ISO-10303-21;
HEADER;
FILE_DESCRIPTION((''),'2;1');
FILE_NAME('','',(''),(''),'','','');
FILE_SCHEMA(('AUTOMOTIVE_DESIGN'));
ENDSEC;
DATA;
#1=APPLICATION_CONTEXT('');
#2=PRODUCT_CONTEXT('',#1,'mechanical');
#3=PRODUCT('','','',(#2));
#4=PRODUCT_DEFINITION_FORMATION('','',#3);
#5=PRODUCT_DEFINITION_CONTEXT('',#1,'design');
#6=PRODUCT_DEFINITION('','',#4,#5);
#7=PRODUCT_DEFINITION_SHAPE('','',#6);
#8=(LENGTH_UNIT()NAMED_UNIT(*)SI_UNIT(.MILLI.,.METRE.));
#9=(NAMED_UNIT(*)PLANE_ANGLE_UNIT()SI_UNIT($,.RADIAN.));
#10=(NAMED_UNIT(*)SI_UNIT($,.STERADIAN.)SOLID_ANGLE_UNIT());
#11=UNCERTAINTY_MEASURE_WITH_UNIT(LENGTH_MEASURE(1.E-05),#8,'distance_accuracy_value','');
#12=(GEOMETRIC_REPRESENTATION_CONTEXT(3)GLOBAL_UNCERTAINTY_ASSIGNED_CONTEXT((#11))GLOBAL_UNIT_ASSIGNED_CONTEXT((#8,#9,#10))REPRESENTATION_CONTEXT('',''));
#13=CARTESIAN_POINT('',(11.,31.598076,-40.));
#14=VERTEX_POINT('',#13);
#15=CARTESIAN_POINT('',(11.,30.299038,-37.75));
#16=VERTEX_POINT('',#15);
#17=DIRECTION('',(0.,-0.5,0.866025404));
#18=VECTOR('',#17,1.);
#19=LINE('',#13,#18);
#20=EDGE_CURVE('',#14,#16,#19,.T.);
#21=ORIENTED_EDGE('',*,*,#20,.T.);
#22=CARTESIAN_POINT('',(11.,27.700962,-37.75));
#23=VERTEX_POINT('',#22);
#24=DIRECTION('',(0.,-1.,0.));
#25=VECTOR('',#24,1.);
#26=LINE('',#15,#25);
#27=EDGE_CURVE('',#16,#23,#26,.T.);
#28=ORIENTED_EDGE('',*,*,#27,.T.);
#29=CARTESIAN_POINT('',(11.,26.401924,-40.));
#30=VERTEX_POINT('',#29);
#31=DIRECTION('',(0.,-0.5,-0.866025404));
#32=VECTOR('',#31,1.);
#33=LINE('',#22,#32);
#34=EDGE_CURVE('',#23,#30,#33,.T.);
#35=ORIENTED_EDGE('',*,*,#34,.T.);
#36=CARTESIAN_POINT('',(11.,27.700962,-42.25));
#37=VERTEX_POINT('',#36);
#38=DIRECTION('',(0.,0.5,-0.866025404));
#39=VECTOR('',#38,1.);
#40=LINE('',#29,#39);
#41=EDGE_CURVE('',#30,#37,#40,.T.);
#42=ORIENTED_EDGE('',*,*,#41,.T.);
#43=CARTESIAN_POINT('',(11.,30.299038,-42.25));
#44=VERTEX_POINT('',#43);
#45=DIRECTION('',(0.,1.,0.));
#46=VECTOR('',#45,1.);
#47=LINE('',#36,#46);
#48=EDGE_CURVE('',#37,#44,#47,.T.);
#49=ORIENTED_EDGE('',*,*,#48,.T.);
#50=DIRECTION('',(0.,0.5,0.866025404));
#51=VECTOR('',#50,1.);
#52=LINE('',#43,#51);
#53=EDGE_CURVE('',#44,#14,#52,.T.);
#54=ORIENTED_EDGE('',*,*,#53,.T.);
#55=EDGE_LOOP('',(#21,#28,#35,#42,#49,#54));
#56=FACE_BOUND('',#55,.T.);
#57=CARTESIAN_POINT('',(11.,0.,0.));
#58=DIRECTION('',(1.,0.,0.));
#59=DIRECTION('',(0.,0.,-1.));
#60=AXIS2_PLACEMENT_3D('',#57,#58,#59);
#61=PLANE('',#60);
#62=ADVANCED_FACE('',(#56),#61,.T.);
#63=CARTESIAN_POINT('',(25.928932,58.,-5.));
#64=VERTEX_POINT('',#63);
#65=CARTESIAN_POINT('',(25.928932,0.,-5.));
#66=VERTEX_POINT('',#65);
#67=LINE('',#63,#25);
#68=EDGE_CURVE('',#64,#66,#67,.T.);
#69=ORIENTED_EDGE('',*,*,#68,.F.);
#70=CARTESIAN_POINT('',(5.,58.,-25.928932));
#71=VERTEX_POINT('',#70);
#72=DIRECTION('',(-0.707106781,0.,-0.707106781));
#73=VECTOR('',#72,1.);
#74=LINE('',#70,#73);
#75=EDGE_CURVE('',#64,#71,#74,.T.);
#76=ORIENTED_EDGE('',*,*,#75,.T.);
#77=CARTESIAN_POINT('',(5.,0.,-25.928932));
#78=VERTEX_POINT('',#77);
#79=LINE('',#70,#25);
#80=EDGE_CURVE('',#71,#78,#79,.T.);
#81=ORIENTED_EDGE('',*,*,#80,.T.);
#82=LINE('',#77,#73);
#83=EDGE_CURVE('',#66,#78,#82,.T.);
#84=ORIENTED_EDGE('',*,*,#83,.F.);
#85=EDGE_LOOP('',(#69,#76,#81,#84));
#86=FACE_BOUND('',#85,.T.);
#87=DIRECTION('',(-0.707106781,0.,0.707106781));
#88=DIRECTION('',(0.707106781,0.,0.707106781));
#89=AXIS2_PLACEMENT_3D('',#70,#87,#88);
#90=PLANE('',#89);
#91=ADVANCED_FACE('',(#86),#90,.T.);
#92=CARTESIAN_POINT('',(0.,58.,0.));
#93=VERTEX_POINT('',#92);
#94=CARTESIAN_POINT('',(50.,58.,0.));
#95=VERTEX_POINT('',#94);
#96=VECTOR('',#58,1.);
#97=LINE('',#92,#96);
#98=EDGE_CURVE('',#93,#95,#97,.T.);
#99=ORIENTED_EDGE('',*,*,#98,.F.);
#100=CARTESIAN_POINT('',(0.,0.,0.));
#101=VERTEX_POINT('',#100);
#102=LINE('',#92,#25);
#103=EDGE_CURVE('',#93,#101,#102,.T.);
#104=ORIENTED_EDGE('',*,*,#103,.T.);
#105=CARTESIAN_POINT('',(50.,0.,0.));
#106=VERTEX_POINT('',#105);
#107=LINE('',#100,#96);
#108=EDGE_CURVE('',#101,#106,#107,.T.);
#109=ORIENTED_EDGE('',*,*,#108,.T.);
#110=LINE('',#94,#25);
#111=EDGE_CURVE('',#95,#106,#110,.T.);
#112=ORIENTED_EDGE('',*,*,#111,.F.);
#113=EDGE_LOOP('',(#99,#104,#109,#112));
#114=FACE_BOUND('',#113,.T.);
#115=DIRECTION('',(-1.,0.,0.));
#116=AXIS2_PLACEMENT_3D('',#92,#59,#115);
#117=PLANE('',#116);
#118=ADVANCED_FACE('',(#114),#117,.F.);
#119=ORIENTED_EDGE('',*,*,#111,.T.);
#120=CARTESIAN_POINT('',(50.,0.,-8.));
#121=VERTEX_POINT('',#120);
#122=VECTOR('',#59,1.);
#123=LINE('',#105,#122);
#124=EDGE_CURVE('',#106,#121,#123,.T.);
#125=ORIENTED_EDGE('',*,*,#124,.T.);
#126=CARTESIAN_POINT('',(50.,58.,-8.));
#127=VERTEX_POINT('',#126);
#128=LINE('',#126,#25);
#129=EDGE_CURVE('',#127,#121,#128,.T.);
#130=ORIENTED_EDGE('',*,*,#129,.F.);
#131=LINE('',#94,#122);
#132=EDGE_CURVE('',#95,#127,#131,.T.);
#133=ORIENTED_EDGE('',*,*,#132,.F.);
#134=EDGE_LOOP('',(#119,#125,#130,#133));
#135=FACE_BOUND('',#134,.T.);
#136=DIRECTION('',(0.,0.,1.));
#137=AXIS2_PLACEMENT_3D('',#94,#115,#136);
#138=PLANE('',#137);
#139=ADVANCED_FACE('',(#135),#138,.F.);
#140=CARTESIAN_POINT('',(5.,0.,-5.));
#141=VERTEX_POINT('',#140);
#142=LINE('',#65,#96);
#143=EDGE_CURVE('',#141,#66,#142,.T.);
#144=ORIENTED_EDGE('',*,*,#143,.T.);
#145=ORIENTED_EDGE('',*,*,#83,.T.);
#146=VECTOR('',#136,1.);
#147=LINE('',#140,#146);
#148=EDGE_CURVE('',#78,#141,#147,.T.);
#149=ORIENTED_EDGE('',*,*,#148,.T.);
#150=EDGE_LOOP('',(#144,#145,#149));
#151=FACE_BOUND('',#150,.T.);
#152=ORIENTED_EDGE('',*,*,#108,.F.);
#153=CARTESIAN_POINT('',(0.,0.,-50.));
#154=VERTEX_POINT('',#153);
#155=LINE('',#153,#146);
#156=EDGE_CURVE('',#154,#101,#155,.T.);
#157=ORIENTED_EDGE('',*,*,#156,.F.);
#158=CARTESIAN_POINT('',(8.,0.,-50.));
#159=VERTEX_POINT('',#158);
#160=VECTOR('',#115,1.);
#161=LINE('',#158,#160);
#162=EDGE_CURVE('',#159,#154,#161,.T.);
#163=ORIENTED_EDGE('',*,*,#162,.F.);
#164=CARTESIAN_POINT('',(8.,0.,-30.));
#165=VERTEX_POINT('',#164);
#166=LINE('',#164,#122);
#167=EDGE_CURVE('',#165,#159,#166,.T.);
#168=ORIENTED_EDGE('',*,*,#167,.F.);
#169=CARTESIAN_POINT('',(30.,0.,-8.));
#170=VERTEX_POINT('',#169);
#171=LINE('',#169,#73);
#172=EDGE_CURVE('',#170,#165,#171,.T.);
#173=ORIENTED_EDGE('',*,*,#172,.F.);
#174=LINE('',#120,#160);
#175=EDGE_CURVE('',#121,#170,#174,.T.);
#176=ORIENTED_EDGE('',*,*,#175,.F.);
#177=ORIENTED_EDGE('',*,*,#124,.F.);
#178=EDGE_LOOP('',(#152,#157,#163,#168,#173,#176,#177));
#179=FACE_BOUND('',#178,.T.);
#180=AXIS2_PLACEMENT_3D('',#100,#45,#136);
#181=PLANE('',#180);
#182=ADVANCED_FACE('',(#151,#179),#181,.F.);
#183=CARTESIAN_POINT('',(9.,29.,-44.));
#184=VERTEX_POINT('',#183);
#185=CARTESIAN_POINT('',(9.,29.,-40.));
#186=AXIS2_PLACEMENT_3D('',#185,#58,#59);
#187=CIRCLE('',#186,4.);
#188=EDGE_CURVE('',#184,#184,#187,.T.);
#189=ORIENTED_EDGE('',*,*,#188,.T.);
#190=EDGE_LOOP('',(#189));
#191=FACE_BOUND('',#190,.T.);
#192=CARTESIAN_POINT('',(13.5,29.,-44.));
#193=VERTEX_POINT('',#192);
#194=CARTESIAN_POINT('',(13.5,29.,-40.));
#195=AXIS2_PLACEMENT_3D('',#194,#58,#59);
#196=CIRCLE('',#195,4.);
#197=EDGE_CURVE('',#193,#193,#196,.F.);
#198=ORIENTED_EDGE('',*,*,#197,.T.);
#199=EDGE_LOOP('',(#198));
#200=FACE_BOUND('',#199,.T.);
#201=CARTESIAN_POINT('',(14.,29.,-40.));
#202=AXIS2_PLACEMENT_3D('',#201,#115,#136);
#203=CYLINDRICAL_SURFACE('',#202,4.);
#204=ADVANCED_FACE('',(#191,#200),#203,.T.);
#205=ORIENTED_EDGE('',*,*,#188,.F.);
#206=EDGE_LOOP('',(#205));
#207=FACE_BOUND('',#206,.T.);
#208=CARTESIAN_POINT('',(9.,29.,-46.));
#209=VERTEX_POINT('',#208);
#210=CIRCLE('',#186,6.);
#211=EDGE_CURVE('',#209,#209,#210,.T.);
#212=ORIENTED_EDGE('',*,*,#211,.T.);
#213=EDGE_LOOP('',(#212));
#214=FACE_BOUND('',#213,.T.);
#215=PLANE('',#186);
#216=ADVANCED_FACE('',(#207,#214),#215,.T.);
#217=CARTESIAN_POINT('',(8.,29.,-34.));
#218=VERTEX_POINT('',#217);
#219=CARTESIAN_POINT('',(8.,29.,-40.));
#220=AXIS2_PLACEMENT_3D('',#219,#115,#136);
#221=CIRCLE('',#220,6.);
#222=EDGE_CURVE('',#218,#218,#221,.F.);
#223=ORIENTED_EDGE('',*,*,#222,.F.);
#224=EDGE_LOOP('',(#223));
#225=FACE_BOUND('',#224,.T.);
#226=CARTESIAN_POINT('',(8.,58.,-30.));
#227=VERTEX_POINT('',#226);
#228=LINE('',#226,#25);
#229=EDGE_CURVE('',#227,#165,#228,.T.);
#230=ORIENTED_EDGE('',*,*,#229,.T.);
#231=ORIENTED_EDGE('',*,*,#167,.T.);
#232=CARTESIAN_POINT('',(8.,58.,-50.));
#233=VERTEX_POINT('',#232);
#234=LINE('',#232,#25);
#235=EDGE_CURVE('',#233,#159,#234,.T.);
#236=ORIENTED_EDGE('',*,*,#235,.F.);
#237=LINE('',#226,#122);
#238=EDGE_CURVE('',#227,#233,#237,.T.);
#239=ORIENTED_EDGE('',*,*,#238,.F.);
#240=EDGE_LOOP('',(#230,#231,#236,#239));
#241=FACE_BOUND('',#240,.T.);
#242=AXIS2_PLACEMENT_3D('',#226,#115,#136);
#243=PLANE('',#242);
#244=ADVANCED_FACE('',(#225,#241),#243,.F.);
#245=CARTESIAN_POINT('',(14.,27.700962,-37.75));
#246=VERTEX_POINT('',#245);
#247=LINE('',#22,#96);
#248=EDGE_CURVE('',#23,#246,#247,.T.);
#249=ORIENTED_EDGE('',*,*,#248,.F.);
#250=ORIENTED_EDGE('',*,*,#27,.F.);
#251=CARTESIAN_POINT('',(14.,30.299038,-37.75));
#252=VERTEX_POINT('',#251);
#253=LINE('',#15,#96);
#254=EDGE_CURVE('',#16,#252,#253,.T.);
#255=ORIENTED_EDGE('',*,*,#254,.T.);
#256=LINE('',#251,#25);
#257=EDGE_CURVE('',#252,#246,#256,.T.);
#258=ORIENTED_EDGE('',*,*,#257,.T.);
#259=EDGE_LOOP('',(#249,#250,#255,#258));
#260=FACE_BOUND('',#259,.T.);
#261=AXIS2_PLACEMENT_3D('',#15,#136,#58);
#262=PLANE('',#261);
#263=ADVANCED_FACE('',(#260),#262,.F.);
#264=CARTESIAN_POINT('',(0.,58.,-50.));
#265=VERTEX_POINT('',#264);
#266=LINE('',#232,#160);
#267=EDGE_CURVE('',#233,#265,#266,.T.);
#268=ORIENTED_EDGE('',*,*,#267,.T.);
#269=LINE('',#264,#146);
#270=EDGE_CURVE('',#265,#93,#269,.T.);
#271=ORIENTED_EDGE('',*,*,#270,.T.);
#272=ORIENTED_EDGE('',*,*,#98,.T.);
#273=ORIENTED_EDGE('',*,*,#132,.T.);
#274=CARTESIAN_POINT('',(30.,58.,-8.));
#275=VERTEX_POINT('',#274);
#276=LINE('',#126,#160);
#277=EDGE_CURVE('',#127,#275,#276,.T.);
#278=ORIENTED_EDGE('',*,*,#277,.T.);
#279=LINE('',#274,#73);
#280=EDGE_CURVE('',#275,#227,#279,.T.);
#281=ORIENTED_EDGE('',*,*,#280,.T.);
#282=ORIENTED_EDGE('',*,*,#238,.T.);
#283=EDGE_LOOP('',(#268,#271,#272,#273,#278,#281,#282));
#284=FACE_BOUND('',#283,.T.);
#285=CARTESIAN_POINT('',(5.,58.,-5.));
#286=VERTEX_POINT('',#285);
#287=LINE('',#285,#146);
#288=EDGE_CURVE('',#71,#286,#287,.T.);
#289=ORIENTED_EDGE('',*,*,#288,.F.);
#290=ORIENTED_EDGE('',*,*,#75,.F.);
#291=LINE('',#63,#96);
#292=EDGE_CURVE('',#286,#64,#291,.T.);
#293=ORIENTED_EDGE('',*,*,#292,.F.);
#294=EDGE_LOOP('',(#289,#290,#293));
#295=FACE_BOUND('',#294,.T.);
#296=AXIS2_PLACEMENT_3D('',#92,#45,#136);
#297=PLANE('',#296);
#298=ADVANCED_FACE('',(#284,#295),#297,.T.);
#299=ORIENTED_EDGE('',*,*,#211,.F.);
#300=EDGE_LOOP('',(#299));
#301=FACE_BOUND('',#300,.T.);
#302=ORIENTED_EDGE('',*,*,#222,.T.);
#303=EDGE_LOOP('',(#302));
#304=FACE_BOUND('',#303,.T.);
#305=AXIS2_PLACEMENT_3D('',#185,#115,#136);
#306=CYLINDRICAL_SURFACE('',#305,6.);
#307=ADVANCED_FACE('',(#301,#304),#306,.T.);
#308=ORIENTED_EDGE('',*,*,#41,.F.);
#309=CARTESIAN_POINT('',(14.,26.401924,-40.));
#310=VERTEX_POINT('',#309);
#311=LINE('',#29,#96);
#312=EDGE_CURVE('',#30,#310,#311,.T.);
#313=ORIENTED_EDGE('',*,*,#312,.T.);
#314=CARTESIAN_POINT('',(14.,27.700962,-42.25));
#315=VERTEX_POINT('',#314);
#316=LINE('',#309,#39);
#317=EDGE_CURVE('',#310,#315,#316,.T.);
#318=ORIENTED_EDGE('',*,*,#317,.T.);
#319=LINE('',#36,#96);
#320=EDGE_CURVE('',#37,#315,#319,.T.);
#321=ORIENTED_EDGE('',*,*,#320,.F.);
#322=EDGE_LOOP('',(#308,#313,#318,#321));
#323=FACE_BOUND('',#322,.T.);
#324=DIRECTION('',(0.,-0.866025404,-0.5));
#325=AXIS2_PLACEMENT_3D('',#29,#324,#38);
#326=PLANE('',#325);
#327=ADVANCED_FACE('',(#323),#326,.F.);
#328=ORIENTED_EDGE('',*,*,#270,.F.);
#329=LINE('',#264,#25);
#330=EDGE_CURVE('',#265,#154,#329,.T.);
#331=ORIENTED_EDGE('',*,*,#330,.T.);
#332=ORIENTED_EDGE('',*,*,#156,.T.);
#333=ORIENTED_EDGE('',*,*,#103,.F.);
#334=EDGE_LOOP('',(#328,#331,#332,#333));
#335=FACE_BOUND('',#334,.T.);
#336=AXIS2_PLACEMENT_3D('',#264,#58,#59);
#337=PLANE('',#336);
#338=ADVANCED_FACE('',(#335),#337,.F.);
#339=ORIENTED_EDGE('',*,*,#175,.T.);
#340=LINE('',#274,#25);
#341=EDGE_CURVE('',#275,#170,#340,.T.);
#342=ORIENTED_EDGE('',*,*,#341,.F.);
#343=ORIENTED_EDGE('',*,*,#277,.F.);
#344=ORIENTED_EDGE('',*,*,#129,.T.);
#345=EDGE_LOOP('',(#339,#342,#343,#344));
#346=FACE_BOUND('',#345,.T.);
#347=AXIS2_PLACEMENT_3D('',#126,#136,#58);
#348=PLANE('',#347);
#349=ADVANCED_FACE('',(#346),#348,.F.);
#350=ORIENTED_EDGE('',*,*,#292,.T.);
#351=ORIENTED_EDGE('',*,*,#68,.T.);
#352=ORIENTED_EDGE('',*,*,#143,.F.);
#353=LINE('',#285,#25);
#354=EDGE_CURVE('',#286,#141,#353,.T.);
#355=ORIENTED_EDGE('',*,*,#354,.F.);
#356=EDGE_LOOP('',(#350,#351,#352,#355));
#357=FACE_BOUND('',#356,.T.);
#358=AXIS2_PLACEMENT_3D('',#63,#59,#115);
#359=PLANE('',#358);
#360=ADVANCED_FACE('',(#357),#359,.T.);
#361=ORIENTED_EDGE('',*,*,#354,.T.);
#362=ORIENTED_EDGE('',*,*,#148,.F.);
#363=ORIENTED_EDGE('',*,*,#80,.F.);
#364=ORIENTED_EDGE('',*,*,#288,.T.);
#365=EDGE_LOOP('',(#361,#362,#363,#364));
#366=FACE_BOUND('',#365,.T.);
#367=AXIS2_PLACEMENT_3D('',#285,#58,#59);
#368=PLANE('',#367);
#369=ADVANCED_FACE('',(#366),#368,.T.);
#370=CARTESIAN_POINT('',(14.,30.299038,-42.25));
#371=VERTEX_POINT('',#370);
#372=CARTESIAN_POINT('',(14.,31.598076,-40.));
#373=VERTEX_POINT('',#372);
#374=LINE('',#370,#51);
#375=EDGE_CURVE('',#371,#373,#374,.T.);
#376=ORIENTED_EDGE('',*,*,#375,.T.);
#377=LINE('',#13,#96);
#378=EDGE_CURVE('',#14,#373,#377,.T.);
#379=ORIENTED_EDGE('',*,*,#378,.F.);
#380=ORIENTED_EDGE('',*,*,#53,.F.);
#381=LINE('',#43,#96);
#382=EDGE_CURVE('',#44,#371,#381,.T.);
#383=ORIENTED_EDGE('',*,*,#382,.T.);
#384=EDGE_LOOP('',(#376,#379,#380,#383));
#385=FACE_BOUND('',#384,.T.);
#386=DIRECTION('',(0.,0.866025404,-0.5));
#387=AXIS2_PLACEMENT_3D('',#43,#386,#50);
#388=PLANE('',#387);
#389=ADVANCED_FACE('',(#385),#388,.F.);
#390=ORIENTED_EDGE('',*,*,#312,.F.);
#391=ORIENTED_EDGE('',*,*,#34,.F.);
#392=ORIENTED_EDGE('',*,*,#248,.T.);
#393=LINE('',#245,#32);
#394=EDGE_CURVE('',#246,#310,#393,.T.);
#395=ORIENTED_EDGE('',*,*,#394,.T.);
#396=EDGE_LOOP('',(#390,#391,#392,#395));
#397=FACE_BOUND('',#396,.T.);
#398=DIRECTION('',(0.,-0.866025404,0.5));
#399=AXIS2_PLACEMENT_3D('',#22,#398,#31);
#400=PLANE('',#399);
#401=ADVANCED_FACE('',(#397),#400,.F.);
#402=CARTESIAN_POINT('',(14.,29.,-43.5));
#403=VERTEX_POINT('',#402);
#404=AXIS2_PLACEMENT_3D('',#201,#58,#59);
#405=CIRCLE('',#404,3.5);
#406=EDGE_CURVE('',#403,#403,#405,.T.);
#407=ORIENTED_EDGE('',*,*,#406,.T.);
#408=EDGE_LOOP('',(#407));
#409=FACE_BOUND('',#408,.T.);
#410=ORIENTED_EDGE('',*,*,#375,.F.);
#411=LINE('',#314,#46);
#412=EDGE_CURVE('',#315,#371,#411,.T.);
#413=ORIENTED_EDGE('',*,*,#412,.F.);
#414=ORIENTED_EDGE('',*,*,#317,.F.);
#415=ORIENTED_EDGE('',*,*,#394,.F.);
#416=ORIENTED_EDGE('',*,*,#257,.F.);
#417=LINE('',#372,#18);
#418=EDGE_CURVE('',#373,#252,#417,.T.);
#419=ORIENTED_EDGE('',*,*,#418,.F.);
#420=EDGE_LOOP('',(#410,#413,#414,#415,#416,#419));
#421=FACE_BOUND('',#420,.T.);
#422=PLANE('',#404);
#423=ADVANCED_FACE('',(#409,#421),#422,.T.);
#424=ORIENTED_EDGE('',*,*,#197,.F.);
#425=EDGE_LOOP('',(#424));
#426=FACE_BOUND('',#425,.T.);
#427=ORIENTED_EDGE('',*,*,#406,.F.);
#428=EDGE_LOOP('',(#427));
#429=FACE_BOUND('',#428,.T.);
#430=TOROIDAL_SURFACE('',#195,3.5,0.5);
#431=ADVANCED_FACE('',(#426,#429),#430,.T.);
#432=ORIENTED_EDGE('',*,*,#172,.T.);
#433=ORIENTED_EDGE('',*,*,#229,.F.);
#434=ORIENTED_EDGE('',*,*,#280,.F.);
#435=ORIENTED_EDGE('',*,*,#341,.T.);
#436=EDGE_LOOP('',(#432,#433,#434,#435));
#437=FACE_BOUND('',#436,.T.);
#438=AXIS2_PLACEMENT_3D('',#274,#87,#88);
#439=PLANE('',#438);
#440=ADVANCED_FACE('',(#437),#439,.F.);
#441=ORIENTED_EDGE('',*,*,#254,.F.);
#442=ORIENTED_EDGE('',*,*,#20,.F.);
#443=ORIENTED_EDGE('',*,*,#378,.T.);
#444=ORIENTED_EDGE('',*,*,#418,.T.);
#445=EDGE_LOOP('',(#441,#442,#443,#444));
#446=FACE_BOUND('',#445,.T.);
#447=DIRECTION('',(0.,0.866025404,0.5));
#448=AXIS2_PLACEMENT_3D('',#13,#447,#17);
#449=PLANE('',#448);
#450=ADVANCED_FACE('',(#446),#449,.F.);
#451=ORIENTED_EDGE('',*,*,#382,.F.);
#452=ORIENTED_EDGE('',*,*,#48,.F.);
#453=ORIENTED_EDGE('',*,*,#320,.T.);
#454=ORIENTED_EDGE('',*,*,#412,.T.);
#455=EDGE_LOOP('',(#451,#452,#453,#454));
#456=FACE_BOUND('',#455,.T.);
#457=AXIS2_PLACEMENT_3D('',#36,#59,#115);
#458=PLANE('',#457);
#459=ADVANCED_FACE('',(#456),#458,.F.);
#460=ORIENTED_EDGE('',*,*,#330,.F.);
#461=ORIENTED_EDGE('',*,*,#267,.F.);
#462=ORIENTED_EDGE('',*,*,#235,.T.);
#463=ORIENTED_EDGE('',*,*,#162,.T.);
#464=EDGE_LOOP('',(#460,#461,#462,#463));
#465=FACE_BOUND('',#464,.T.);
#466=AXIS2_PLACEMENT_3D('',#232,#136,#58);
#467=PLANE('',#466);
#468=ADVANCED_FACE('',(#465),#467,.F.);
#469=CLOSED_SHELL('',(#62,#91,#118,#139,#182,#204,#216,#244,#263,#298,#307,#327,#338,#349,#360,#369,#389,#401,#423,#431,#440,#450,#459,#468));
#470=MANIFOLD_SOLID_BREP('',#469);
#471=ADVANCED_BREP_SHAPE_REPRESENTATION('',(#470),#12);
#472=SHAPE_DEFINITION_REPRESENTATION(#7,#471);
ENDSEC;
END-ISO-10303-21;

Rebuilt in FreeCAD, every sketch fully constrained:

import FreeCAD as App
import Part
import Sketcher
from FreeCAD import Vector
Q = App.Units.Quantity


def edges_at(feature, points):
    """Names of the edges that pass closest to the given points."""
    edges = feature.Shape.Edges
    near = lambda p: min(range(len(edges)), key=lambda i: edges[i].distToShape(Part.Vertex(*p))[0])
    return sorted({f"Edge{near(p) + 1}" for p in points})


def add_polygon(sketch, points):
    """Adds a closed chain of lines whose ends are joined by coincident constraints."""
    first, n = sketch.GeometryCount, len(points)
    for a, b in zip(points, points[1:] + points[:1]):
        sketch.addGeometry(Part.LineSegment(App.Vector(*a, 0), App.Vector(*b, 0)), False)
    for i in range(n):
        sketch.addConstraint(Sketcher.Constraint("Coincident", first + i, 2, first + (i + 1) % n, 1))

doc = App.newDocument("Part")
params = doc.addObject("Spreadsheet::Sheet", "Params")
for row, (alias, value) in enumerate([
    ("sketch1_width", "50 mm"),
    ("sketch1_width2", "20 mm"),
    ("sketch1_width3", "8 mm"),
    ("pad1_length", "58 mm"),
    ("sketch2_diameter", "12 mm"),
    ("pad2_length", "1 mm"),
    ("sketch3_diameter", "8 mm"),
    ("pad3_length", "5 mm"),
    ("pocket1_length", "3 mm"),
    ("fillet_radius", "0.5 mm"),
], start=1):
    params.set(f"A{row}", alias)
    params.set(f"B{row}", "=" + value)
    params.setAlias(f"B{row}", alias)

body = doc.addObject("PartDesign::Body", "Body")

# Sketch on XZ plane
sketch1 = doc.addObject("Sketcher::SketchObject", "Sketch")
body.addObject(sketch1)
sketch1.AttachmentSupport = (doc.XZ_Plane, [""])
sketch1.MapMode = "FlatFace"
add_polygon(sketch1, [(0, -50), (0, 0), (50, 0), (50, -8), (30, -8), (8, -30), (8, -50)])  # lines 0-6
add_polygon(sketch1, [(5, -5), (5, -26), (26, -5)])  # lines 7-9
sketch1.addConstraint([
    Sketcher.Constraint("Vertical", 0),
    Sketcher.Constraint("Horizontal", 1),
    Sketcher.Constraint("Vertical", 2),
    Sketcher.Constraint("Horizontal", 3),
    Sketcher.Constraint("Vertical", 5),
    Sketcher.Constraint("Horizontal", 6),
    Sketcher.Constraint("Vertical", 7),
    Sketcher.Constraint("Horizontal", 9),
    Sketcher.Constraint("Coincident", 0, 2, -1, 1),
    Sketcher.Constraint("Parallel", 4, 8),
    Sketcher.Constraint("Equal", 1, 0),
    Sketcher.Constraint("Equal", 6, 2),
    Sketcher.Constraint("Equal", 3, 5),
    Sketcher.Constraint("DistanceX", 1, 1, 1, 2, 50.0),
    Sketcher.Constraint("DistanceX", 3, 2, 3, 1, 20.0),
    Sketcher.Constraint("DistanceX", 6, 2, 6, 1, 8.0),
    Sketcher.Constraint("DistanceX", -1, 1, 7, 2, 5.0),
    Sketcher.Constraint("DistanceY", 8, 2, -1, 1, 5.0),
    Sketcher.Constraint("Distance", 8, 29.59798),
])
sketch1.setExpression("Constraints[23]", "Params.sketch1_width")
sketch1.setExpression("Constraints[24]", "Params.sketch1_width2")
sketch1.setExpression("Constraints[25]", "Params.sketch1_width3")
pad1 = doc.addObject("PartDesign::Pad", "Pad")
body.addObject(pad1)
pad1.Profile = sketch1
pad1.setExpression("Length", "Params.pad1_length")
pad1.Reversed = True

# Sketch on YZ plane
sketch2 = doc.addObject("Sketcher::SketchObject", "Sketch001")
body.addObject(sketch2)
sketch2.AttachmentSupport = (doc.YZ_Plane, [""])
sketch2.MapMode = "FlatFace"
sketch2.AttachmentOffset = App.Placement(Vector(0, 0, 8), App.Rotation())
sketch2.addGeometry(Part.Circle(Vector(29, -40, 0), Vector(0, 0, 1), 6), False)
sketch2.addConstraint([
    Sketcher.Constraint("Diameter", 0, 12.0),
    Sketcher.Constraint("DistanceX", -1, 1, 0, 3, 29.0),
    Sketcher.Constraint("DistanceY", 0, 3, -1, 1, 40.0),
])
sketch2.setExpression("Constraints[0]", "Params.sketch2_diameter")
pad2 = doc.addObject("PartDesign::Pad", "Pad001")
body.addObject(pad2)
pad2.Profile = sketch2
pad2.setExpression("Length", "Params.pad2_length")

# Sketch on YZ plane
sketch3 = doc.addObject("Sketcher::SketchObject", "Sketch002")
body.addObject(sketch3)
sketch3.AttachmentSupport = (doc.YZ_Plane, [""])
sketch3.MapMode = "FlatFace"
sketch3.AttachmentOffset = App.Placement(Vector(0, 0, 9), App.Rotation())
sketch3.addGeometry(Part.Circle(Vector(29, -40, 0), Vector(0, 0, 1), 4), False)
sketch3.addConstraint([
    Sketcher.Constraint("Diameter", 0, 8.0),
    Sketcher.Constraint("DistanceX", -1, 1, 0, 3, 29.0),
    Sketcher.Constraint("DistanceY", 0, 3, -1, 1, 40.0),
])
sketch3.setExpression("Constraints[0]", "Params.sketch3_diameter")
pad3 = doc.addObject("PartDesign::Pad", "Pad002")
body.addObject(pad3)
pad3.Profile = sketch3
pad3.setExpression("Length", "Params.pad3_length")

# Sketch on YZ plane
sketch4 = doc.addObject("Sketcher::SketchObject", "Sketch003")
body.addObject(sketch4)
sketch4.AttachmentSupport = (doc.YZ_Plane, [""])
sketch4.MapMode = "FlatFace"
sketch4.AttachmentOffset = App.Placement(Vector(0, 0, 14), App.Rotation())
add_polygon(sketch4, [(26.4, -40), (27.7, -42.2), (30.3, -42.2), (31.6, -40), (30.3, -37.8), (27.7, -37.8)])  # lines 0-5
sketch4.addConstraint([
    Sketcher.Constraint("Horizontal", 1),
    Sketcher.Constraint("Horizontal", 4),
    Sketcher.Constraint("Parallel", 0, 3),
    Sketcher.Constraint("Parallel", 2, 5),
    Sketcher.Constraint("Horizontal", 2, 2, 5, 2),
    Sketcher.Constraint("Vertical", 1, 2, 3, 2),
    Sketcher.Constraint("Vertical", 0, 2, 4, 2),
    Sketcher.Constraint("Angle", 0, Q("-60 deg")),
    Sketcher.Constraint("DistanceY", 2, 2, -1, 1, 40.0),
    Sketcher.Constraint("DistanceY", 1, 2, 3, 2, 4.5),
    Sketcher.Constraint("DistanceX", 1, 1, 1, 2, 2.598076),
    Sketcher.Constraint("DistanceX", -1, 1, 0, 2, 27.700962),
])
pocket1 = doc.addObject("PartDesign::Pocket", "Pocket")
body.addObject(pocket1)
pocket1.Profile = sketch4
pocket1.setExpression("Length", "Params.pocket1_length")
doc.recompute()

fillet = doc.addObject("PartDesign::Fillet", "Fillet")
body.addObject(fillet)
fillet.Base = (pocket1, edges_at(pocket1, [(14, 29, -36)]))
fillet.setExpression("Radius", "Params.fillet_radius")

doc.recompute()
